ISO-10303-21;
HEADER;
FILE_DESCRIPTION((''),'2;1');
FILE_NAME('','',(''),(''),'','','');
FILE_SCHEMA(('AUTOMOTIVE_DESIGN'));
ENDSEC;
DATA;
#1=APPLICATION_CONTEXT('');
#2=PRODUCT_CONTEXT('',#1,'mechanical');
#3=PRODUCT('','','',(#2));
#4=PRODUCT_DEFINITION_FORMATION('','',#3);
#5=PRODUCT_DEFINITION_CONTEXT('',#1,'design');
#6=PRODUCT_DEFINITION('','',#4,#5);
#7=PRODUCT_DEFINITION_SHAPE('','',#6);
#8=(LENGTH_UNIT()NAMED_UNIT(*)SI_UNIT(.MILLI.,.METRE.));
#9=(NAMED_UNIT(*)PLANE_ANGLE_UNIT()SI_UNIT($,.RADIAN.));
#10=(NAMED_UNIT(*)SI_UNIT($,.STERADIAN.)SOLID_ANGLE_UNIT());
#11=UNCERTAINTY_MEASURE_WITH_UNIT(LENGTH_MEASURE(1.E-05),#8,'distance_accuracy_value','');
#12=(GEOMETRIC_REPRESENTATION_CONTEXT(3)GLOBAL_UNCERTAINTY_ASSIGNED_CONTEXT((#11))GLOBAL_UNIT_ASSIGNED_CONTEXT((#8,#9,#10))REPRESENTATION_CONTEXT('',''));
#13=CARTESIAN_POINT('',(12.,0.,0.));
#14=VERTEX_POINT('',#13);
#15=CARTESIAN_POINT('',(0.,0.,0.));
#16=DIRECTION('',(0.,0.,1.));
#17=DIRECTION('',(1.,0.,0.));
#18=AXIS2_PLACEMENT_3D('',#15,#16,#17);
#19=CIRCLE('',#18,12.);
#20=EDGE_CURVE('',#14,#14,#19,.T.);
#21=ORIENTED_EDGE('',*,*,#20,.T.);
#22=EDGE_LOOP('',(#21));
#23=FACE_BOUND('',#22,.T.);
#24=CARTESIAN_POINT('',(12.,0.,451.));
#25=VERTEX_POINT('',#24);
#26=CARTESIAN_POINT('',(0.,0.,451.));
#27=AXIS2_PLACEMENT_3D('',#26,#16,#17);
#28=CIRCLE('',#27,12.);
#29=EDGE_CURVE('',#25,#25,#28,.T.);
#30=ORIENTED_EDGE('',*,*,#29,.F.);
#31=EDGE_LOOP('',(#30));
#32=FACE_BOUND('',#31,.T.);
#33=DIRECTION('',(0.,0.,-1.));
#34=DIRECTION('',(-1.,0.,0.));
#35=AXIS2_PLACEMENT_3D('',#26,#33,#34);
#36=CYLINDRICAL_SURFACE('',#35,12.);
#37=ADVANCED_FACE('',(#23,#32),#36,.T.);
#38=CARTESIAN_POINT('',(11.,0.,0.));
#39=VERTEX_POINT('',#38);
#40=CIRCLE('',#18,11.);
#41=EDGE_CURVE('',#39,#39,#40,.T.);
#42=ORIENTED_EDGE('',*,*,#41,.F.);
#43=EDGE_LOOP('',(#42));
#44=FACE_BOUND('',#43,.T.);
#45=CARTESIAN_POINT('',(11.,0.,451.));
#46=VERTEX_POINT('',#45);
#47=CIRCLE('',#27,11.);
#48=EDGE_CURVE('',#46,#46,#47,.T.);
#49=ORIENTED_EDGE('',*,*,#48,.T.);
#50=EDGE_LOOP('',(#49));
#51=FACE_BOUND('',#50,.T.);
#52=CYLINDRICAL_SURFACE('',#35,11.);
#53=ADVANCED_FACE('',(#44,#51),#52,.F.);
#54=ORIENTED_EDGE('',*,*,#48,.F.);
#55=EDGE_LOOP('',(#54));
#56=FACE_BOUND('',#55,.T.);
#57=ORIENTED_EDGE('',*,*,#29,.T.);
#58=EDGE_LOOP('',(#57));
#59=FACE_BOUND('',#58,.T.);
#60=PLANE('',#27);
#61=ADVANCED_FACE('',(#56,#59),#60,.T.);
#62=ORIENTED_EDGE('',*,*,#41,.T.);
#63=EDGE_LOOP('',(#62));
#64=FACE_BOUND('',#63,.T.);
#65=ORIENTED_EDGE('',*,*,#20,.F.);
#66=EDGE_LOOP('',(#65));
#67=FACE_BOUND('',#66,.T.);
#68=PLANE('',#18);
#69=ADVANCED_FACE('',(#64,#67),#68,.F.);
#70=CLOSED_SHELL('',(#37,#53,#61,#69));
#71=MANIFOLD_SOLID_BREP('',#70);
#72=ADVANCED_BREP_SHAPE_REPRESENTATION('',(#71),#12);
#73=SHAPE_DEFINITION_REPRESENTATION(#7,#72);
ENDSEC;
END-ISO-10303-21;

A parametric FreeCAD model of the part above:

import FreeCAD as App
import Part
import Sketcher
from FreeCAD import Vector
Q = App.Units.Quantity

doc = App.newDocument("Part")
body = doc.addObject("PartDesign::Body", "Body")

sketch1 = body.newObject("Sketcher::SketchObject", "Sketch")
sketch1.AttachmentSupport = (doc.getObject("XY_Plane"), [""])
sketch1.MapMode = "FlatFace"
sketch1.addGeometry([
    Part.Circle(Vector(0, 0, 0), Vector(0, 0, 1), 12),
    Part.Circle(Vector(0, 0, 0), Vector(0, 0, 1), 11),
], False)
sketch1.addConstraint([
    Sketcher.Constraint("Coincident", 0, 3, -1, 1),
    Sketcher.Constraint("Coincident", 1, 3, -1, 1),
    Sketcher.Constraint("Diameter", 0, Q("24 mm")),
    Sketcher.Constraint("Diameter", 1, Q("22 mm")),
])
pad1 = body.newObject("PartDesign::Pad", "Pad")
pad1.Profile = sketch1
pad1.Length = 451

doc.recompute()
